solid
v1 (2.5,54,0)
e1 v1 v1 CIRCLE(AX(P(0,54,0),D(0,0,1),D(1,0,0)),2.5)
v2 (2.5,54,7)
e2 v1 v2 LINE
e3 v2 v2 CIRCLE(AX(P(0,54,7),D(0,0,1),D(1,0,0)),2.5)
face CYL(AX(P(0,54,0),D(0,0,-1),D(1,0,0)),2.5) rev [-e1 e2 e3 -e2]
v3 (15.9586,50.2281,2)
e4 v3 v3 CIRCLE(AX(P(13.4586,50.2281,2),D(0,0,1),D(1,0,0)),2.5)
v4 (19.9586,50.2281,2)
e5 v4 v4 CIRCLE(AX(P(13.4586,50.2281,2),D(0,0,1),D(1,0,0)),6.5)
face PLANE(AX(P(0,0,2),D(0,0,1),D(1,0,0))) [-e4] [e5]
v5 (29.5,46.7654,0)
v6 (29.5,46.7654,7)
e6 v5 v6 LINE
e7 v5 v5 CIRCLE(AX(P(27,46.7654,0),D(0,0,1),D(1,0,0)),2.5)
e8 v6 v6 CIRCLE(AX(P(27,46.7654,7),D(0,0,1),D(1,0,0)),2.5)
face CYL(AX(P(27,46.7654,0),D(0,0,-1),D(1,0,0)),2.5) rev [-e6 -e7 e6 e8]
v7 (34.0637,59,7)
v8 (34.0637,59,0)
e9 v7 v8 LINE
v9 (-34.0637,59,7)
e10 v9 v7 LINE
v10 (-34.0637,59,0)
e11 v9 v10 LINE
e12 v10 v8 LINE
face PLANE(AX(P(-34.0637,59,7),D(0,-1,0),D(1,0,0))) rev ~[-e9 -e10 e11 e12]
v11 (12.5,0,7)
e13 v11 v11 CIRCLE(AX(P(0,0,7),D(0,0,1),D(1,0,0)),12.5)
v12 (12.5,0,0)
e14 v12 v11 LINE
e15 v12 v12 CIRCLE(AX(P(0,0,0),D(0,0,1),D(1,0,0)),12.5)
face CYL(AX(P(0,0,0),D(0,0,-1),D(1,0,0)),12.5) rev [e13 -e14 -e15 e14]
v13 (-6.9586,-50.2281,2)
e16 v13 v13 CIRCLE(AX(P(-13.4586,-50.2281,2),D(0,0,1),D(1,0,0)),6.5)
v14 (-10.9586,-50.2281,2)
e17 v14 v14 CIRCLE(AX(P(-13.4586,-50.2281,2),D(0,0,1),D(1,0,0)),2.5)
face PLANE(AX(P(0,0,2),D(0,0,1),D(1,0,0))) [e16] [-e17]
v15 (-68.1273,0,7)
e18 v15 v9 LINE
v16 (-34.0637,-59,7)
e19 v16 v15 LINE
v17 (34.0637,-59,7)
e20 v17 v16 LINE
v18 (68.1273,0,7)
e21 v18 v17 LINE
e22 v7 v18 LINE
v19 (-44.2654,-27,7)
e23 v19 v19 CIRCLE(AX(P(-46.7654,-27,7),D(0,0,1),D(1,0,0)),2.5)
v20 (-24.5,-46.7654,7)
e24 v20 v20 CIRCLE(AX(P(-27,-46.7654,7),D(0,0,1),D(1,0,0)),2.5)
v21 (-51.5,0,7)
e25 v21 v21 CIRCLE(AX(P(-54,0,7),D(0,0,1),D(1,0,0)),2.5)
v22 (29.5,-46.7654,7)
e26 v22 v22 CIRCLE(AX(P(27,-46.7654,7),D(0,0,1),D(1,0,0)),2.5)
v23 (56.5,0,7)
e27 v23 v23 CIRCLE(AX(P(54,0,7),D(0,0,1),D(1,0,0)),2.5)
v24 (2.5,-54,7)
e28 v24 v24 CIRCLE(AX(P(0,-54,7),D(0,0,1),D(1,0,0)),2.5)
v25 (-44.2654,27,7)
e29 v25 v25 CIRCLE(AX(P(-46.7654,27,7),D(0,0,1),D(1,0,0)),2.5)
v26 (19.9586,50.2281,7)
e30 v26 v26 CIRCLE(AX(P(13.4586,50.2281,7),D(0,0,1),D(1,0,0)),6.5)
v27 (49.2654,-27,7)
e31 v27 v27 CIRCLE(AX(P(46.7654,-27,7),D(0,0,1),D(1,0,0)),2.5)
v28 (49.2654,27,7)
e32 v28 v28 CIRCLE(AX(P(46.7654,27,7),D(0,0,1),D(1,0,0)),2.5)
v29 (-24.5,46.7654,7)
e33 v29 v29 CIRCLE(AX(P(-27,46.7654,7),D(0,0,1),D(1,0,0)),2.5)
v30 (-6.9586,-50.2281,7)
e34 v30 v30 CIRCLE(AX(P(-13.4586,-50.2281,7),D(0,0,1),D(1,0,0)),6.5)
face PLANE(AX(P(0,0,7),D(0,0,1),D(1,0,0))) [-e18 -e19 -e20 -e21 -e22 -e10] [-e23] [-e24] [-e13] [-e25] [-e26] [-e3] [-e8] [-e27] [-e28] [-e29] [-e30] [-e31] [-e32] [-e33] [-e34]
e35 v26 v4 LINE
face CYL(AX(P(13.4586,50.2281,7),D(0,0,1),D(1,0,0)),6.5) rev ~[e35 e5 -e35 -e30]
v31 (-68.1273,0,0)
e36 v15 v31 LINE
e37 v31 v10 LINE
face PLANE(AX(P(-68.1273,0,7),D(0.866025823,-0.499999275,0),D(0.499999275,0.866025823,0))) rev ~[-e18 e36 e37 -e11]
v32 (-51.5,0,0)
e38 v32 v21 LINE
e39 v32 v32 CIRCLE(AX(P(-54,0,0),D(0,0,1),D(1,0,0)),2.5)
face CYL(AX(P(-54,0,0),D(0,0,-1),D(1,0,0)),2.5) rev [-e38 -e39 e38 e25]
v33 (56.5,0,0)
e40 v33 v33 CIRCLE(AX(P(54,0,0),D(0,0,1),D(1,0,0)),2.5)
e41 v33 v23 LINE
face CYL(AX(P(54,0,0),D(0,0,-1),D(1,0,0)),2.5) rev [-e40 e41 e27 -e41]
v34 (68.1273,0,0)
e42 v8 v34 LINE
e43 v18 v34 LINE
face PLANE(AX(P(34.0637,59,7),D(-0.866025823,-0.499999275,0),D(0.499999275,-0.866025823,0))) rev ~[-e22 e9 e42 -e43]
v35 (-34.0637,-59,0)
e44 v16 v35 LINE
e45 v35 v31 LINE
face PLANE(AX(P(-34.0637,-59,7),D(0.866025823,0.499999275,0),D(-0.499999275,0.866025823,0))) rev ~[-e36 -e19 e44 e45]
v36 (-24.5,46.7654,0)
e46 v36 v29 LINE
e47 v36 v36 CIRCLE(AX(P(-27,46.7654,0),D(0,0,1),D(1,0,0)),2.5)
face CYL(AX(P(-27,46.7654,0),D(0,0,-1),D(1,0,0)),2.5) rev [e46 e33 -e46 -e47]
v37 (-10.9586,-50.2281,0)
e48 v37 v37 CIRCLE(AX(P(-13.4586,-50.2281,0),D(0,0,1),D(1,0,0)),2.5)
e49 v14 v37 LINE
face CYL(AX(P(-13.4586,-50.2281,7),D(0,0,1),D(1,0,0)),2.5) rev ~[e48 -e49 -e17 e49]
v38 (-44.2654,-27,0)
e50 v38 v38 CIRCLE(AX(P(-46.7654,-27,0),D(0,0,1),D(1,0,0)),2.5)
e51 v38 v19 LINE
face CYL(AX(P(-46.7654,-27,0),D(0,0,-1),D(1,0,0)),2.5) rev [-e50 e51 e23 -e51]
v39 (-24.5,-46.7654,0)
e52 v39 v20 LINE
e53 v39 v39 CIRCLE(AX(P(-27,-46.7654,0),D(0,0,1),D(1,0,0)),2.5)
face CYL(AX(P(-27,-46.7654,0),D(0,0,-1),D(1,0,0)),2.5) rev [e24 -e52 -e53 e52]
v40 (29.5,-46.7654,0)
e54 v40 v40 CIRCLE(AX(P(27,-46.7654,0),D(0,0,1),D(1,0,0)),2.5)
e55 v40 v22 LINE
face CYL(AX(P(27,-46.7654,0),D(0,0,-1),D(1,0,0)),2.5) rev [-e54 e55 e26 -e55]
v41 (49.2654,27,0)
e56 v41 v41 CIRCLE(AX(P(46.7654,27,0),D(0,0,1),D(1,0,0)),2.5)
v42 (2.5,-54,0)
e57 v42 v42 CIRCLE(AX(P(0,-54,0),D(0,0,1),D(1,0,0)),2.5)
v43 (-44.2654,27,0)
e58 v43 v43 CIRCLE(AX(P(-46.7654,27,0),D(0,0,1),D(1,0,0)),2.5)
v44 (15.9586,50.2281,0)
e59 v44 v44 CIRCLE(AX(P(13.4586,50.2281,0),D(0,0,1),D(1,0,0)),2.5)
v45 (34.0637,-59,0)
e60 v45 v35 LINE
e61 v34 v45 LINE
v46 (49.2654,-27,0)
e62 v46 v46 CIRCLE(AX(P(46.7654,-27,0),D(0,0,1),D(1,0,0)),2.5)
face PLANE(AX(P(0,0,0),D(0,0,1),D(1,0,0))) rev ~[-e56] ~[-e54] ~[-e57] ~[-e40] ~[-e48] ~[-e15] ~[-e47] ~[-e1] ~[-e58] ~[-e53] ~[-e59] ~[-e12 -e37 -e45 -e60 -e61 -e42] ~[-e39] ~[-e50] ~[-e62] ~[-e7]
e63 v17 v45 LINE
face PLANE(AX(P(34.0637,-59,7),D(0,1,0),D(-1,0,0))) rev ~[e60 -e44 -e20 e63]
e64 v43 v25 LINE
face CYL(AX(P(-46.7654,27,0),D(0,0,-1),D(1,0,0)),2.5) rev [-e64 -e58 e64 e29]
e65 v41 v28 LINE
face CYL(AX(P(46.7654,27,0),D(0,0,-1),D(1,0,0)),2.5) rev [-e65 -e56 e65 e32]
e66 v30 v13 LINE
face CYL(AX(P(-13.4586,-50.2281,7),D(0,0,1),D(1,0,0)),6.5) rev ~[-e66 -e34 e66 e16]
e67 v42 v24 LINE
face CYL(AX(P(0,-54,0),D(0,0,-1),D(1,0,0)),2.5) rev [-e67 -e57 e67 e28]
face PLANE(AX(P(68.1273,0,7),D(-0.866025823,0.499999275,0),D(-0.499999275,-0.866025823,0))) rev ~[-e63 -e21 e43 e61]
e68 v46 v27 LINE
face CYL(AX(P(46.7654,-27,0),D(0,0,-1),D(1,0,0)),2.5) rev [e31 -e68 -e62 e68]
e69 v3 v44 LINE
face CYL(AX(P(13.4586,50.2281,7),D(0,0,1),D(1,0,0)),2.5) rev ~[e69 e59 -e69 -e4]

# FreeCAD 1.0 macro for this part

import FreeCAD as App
import Part
import Sketcher
Q = App.Units.Quantity


def add_polygon(sketch, points):
    """Adds a closed chain of lines whose ends are joined by coincident constraints."""
    first, n = sketch.GeometryCount, len(points)
    for a, b in zip(points, points[1:] + points[:1]):
        sketch.addGeometry(Part.LineSegment(App.Vector(*a, 0), App.Vector(*b, 0)), False)
    for i in range(n):
        sketch.addConstraint(Sketcher.Constraint("Coincident", first + i, 2, first + (i + 1) % n, 1))

doc = App.newDocument("Part")
body = doc.addObject("PartDesign::Body", "Body")

# Sketch on XY plane
sketch1 = body.newObject("Sketcher::SketchObject", "Sketch")
sketch1.AttachmentSupport = (doc.getObject("XY_Plane"), [""])
sketch1.MapMode = "FlatFace"
add_polygon(sketch1, [(39, -67.5), (77.9, 0), (39, 67.5), (-39, 67.5), (-77.9, 0), (-39, -67.5)])  # lines 0-5
sketch1.addGeometry(Part.Circle(App.Vector(-27, -46.8, 0), App.Vector(0, 0, 1), 2.5), False)  # 6
sketch1.addGeometry(Part.Circle(App.Vector(-46.8, -27, 0), App.Vector(0, 0, 1), 2.5), False)  # 7
sketch1.addGeometry(Part.Circle(App.Vector(0, -54, 0), App.Vector(0, 0, 1), 2.5), False)  # 8
sketch1.addGeometry(Part.Circle(App.Vector(27, -46.8, 0), App.Vector(0, 0, 1), 2.5), False)  # 9
sketch1.addGeometry(Part.Circle(App.Vector(46.8, -27, 0), App.Vector(0, 0, 1), 2.5), False)  # 10
sketch1.addGeometry(Part.Circle(App.Vector(-54, 0, 0), App.Vector(0, 0, 1), 2.5), False)  # 11
sketch1.addGeometry(Part.Circle(App.Vector(-46.8, 27, 0), App.Vector(0, 0, 1), 2.5), False)  # 12
sketch1.addGeometry(Part.Circle(App.Vector(-27, 46.8, 0), App.Vector(0, 0, 1), 2.5), False)  # 13
sketch1.addGeometry(Part.Circle(App.Vector(0, 0, 0), App.Vector(0, 0, 1), 12.5), False)  # 14
sketch1.addGeometry(Part.Circle(App.Vector(54, 0, 0), App.Vector(0, 0, 1), 2.5), False)  # 15
sketch1.addGeometry(Part.Circle(App.Vector(46.8, 27, 0), App.Vector(0, 0, 1), 2.5), False)  # 16
sketch1.addGeometry(Part.Circle(App.Vector(27, 46.8, 0), App.Vector(0, 0, 1), 2.5), False)  # 17
sketch1.addGeometry(Part.Circle(App.Vector(0, 54, 0), App.Vector(0, 0, 1), 2.5), False)  # 18
sketch1.addConstraint([
    Sketcher.Constraint("Horizontal", 2),
    Sketcher.Constraint("Horizontal", 5),
    Sketcher.Constraint("Coincident", 14, 3, -1, 1),
    Sketcher.Constraint("Equal", 6, 7),
    Sketcher.Constraint("Equal", 7, 8),
    Sketcher.Constraint("Equal", 8, 9),
    Sketcher.Constraint("Equal", 9, 10),
    Sketcher.Constraint("Equal", 10, 11),
    Sketcher.Constraint("Equal", 11, 12),
    Sketcher.Constraint("Equal", 12, 13),
    Sketcher.Constraint("Equal", 13, 15),
    Sketcher.Constraint("Equal", 15, 16),
    Sketcher.Constraint("Equal", 16, 17),
    Sketcher.Constraint("Equal", 17, 18),
    Sketcher.Constraint("Symmetric", 10, 3, 12, 3, -1, 1),
    Sketcher.Constraint("Symmetric", 9, 3, 13, 3, -1, 1),
    Sketcher.Constraint("Symmetric", 11, 3, 15, 3, -1, 1),
    Sketcher.Constraint("Symmetric", 7, 3, 16, 3, -1, 1),
    Sketcher.Constraint("Symmetric", 6, 3, 17, 3, -1, 1),
    Sketcher.Constraint("Symmetric", 8, 3, 18, 3, -1, 1),
    Sketcher.Constraint("Symmetric", 0, 2, 3, 2, -1, 1),
    Sketcher.Constraint("Symmetric", 1, 2, 4, 2, -1, 1),
    Sketcher.Constraint("Symmetric", 6, 3, 9, 3, -2),
    Sketcher.Constraint("Symmetric", 7, 3, 10, 3, -2),
    Sketcher.Constraint("PointOnObject", 8, 3, -2),
    Sketcher.Constraint("PointOnObject", 11, 3, -1),
    Sketcher.Constraint("PointOnObject", 0, 2, -1),
    Sketcher.Constraint("Parallel", 0, 3),
    Sketcher.Constraint("Vertical", 2, 2, 4, 2),
    Sketcher.Constraint("Diameter", 6, 5.0),
    Sketcher.Constraint("Diameter", 14, 25.0),
    Sketcher.Constraint("DistanceY", 8, 3, -1, 1, 54.0),
    Sketcher.Constraint("DistanceX", 11, 3, -1, 1, 54.0),
    Sketcher.Constraint("DistanceX", 6, 3, 9, 3, 54.0),
    Sketcher.Constraint("DistanceY", 7, 3, 12, 3, 54.0),
    Sketcher.Constraint("Angle", 0, Q("60 deg")),
    Sketcher.Constraint("DistanceY", -1, 1, 1, 2, 67.5),
    Sketcher.Constraint("DistanceX", 2, 2, 2, 1, 77.9422),
    Sketcher.Constraint("DistanceX", 10, 3, 0, 2, 31.177),
    Sketcher.Constraint("DistanceY", 6, 3, -1, 1, 46.7654),
])
pad1 = body.newObject("PartDesign::Pad", "Pad")
pad1.Profile = sketch1
pad1.Length = 7

# Sketch on XY plane
sketch2 = body.newObject("Sketcher::SketchObject", "Sketch001")
sketch2.AttachmentSupport = (doc.getObject("XY_Plane"), [""])
sketch2.MapMode = "FlatFace"
sketch2.AttachmentOffset = App.Placement(App.Vector(0, 0, 7), App.Rotation())
add_polygon(sketch2, [(-39, -68), (39, -68), (78, 0), (39, 68), (-39, 68), (-78, 0)])  # lines 0-5
add_polygon(sketch2, [(-34, -59), (-68, 0), (-34, 59), (34, 59), (68, 0), (34, -59)])  # lines 6-11
sketch2.addConstraint([
    Sketcher.Constraint("Horizontal", 0),
    Sketcher.Constraint("Horizontal", 3),
    Sketcher.Constraint("Horizontal", 8),
    Sketcher.Constraint("Horizontal", 11),
    Sketcher.Constraint("Symmetric", 0, 2, 3, 2, -1, 1),
    Sketcher.Constraint("Symmetric", 1, 2, 4, 2, -1, 1),
    Sketcher.Constraint("Symmetric", 6, 2, 9, 2, -1, 1),
    Sketcher.Constraint("Symmetric", 7, 2, 10, 2, -1, 1),
    Sketcher.Constraint("PointOnObject", 1, 2, -1),
    Sketcher.Constraint("PointOnObject", 6, 2, -1),
    Sketcher.Constraint("Parallel", 2, 5),
    Sketcher.Constraint("Parallel", 5, 6),
    Sketcher.Constraint("Parallel", 4, 7),
    Sketcher.Constraint("Parallel", 6, 9),
    Sketcher.Constraint("Vertical", 0, 2, 2, 2),
    Sketcher.Constraint("DistanceY", 10, 2, 8, 2, 118.0),
    Sketcher.Constraint("Angle", 1, Q("60 deg")),
    Sketcher.Constraint("DistanceY", 0, 2, 2, 2, 135.0),
    Sketcher.Constraint("DistanceX", 0, 1, 0, 2, 77.9422),
    Sketcher.Constraint("DistanceX", 8, 1, 8, 2, 68.1274),
])
pocket1 = body.newObject("PartDesign::Pocket", "Pocket")
pocket1.Profile = sketch2
pocket1.Type = "ThroughAll"

# Sketch on XY plane
sketch3 = body.newObject("Sketcher::SketchObject", "Sketch002")
sketch3.AttachmentSupport = (doc.getObject("XY_Plane"), [""])
sketch3.MapMode = "FlatFace"
sketch3.AttachmentOffset = App.Placement(App.Vector(0, 0, 7), App.Rotation())
sketch3.addGeometry([
    Part.Circle(App.Vector(-13.5, -50.2, 0), App.Vector(0, 0, 1), 2.5),
    Part.Circle(App.Vector(13.5, 50.2, 0), App.Vector(0, 0, 1), 2.5),
], False)
sketch3.addConstraint([
    Sketcher.Constraint("Equal", 0, 1),
    Sketcher.Constraint("Symmetric", 0, 3, 1, 3, -1, 1),
    Sketcher.Constraint("Diameter", 0, 5.0),
    Sketcher.Constraint("DistanceY", 0, 3, -1, 1, 50.228),
    Sketcher.Constraint("DistanceX", 0, 3, -1, 1, 13.4586),
])
pocket2 = body.newObject("PartDesign::Pocket", "Pocket001")
pocket2.Profile = sketch3
pocket2.Type = "ThroughAll"

# Sketch on XY plane
sketch4 = body.newObject("Sketcher::SketchObject", "Sketch003")
sketch4.AttachmentSupport = (doc.getObject("XY_Plane"), [""])
sketch4.MapMode = "FlatFace"
sketch4.AttachmentOffset = App.Placement(App.Vector(0, 0, 7), App.Rotation())
sketch4.addGeometry([
    Part.Circle(App.Vector(13, 50, 0), App.Vector(0, 0, 1), 6),
    Part.Circle(App.Vector(-13, -50, 0), App.Vector(0, 0, 1), 6),
], False)
sketch4.addConstraint([
    Sketcher.Constraint("Equal", 0, 1),
    Sketcher.Constraint("Symmetric", 0, 3, 1, 3, -1, 1),
    Sketcher.Constraint("Diameter", 0, 13.0),
    Sketcher.Constraint("DistanceY", -1, 1, 0, 3, 50.228),
    Sketcher.Constraint("DistanceX", -1, 1, 0, 3, 13.4586),
])
pocket3 = body.newObject("PartDesign::Pocket", "Pocket002")
pocket3.Profile = sketch4
pocket3.Length = 5

doc.recompute()
